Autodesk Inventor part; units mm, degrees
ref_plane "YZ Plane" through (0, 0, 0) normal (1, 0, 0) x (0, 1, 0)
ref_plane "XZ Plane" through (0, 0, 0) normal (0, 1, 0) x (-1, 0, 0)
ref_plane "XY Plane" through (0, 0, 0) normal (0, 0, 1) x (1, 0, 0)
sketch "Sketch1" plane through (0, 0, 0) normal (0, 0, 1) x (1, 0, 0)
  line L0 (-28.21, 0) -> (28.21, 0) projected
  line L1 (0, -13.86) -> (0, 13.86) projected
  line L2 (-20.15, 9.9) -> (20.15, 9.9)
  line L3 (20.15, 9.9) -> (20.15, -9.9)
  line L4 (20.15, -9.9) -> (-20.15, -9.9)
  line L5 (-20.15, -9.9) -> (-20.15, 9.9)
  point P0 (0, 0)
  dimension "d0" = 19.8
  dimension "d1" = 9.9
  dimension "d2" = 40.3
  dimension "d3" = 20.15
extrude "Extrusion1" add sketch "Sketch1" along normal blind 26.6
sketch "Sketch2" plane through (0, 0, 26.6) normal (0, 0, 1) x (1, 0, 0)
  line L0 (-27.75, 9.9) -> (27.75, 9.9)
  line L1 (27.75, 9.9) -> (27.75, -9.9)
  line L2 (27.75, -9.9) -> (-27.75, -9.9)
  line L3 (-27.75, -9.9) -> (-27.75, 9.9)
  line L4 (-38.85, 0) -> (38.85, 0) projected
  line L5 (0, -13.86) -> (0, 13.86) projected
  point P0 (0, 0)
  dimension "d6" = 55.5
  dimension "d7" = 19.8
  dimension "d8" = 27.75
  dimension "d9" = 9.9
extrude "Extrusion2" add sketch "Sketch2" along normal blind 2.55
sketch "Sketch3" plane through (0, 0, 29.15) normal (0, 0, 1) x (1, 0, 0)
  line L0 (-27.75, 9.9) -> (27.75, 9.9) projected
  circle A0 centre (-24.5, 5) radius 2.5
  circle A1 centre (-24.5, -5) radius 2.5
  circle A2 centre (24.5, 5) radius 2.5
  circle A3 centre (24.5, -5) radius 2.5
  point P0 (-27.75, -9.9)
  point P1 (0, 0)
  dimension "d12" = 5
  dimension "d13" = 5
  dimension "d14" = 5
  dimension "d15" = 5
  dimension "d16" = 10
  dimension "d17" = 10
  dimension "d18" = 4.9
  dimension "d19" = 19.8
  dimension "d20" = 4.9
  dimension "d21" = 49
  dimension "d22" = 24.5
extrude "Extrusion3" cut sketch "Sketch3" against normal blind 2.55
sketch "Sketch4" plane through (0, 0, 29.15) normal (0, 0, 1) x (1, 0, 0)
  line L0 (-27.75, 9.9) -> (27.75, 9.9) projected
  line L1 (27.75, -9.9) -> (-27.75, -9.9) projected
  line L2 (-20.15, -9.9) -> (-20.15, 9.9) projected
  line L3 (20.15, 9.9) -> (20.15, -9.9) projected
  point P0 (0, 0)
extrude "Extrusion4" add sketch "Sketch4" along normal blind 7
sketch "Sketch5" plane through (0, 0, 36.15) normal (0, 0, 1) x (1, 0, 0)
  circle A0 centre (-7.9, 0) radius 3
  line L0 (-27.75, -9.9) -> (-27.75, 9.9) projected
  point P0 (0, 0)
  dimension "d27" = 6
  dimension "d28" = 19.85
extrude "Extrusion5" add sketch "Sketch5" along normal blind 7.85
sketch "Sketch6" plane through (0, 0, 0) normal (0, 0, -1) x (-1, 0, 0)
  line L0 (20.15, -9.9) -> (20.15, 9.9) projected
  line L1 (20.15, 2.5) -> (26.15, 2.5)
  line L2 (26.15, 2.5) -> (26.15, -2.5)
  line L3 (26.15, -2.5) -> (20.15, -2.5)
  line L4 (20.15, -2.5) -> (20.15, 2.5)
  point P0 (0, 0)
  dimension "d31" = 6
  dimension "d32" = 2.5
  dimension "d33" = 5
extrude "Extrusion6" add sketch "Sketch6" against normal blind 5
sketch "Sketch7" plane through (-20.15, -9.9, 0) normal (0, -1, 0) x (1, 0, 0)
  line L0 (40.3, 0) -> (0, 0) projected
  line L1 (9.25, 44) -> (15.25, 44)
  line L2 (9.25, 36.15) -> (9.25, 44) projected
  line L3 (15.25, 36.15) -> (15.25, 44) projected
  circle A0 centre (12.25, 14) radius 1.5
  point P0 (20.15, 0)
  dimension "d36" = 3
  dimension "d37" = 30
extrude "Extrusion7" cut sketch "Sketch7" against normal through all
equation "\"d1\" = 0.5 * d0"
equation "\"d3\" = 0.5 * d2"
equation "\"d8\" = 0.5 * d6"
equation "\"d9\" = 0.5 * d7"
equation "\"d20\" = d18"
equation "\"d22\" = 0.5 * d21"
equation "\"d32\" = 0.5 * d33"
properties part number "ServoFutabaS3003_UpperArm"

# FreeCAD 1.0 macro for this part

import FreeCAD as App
import Part
import Sketcher

V = App.Vector


def add_polygon(sketch, points):
    """Adds a closed chain of lines whose ends are joined by coincident constraints."""
    first, n = sketch.GeometryCount, len(points)
    for a, b in zip(points, points[1:] + points[:1]):
        sketch.addGeometry(Part.LineSegment(App.Vector(*a, 0), App.Vector(*b, 0)), False)
    for i in range(n):
        sketch.addConstraint(Sketcher.Constraint("Coincident", first + i, 2, first + (i + 1) % n, 1))

doc = App.newDocument("Part")
body = doc.addObject("PartDesign::Body", "Body")

sketch1 = body.newObject("Sketcher::SketchObject", "Sketch")
sketch1.AttachmentSupport = (doc.getObject("XY_Plane"), [""])
sketch1.MapMode = "FlatFace"
add_polygon(sketch1, [(-20, 10), (-20, -10), (20, -10), (20, 10)])
sketch1.addConstraint(Sketcher.Constraint("Vertical", 0))
sketch1.addConstraint(Sketcher.Constraint("Horizontal", 1))
sketch1.addConstraint(Sketcher.Constraint("Vertical", 2))
sketch1.addConstraint(Sketcher.Constraint("Horizontal", 3))
sketch1.addConstraint(Sketcher.Constraint("Symmetric", 0, 2, 2, 2, -1, 1))
sketch1.addConstraint(Sketcher.Constraint("DistanceX", 1, 1, 1, 2, 40.3))
sketch1.addConstraint(Sketcher.Constraint("DistanceY", 0, 2, 0, 1, 19.8))
pad1 = body.newObject("PartDesign::Pad", "Pad")
pad1.Profile = sketch1
pad1.Length = 26.6

sketch2 = body.newObject("Sketcher::SketchObject", "Sketch001")
sketch2.AttachmentSupport = (doc.getObject("XY_Plane"), [""])
sketch2.MapMode = "FlatFace"
sketch2.AttachmentOffset = App.Placement(V(0, 0, 26.6), App.Rotation())
add_polygon(sketch2, [(-28, 10), (-28, -10), (28, -10), (28, 10)])
sketch2.addConstraint(Sketcher.Constraint("Vertical", 0))
sketch2.addConstraint(Sketcher.Constraint("Horizontal", 1))
sketch2.addConstraint(Sketcher.Constraint("Vertical", 2))
sketch2.addConstraint(Sketcher.Constraint("Horizontal", 3))
sketch2.addConstraint(Sketcher.Constraint("Symmetric", 0, 2, 2, 2, -1, 1))
sketch2.addConstraint(Sketcher.Constraint("DistanceX", 1, 1, 1, 2, 55.5))
sketch2.addConstraint(Sketcher.Constraint("DistanceY", 0, 2, 0, 1, 19.8))
pad2 = body.newObject("PartDesign::Pad", "Pad001")
pad2.Profile = sketch2
pad2.Length = 2.55

sketch3 = body.newObject("Sketcher::SketchObject", "Sketch002")
sketch3.AttachmentSupport = (doc.getObject("XY_Plane"), [""])
sketch3.MapMode = "FlatFace"
sketch3.AttachmentOffset = App.Placement(V(0, 0, 29.15), App.Rotation())
sketch3.addGeometry(Part.Circle(V(-24.5, 5, 0), V(0, 0, 1), 2.5), False)
sketch3.addGeometry(Part.Circle(V(-24.5, -5, 0), V(0, 0, 1), 2.5), False)
sketch3.addGeometry(Part.Circle(V(24.5, 5, 0), V(0, 0, 1), 2.5), False)
sketch3.addGeometry(Part.Circle(V(24.5, -5, 0), V(0, 0, 1), 2.5), False)
sketch3.addConstraint(Sketcher.Constraint("Equal", 0, 1))
sketch3.addConstraint(Sketcher.Constraint("Equal", 1, 2))
sketch3.addConstraint(Sketcher.Constraint("Equal", 2, 3))
sketch3.addConstraint(Sketcher.Constraint("Symmetric", 1, 3, 2, 3, -1, 1))
sketch3.addConstraint(Sketcher.Constraint("Symmetric", 0, 3, 3, 3, -1, 1))
sketch3.addConstraint(Sketcher.Constraint("Symmetric", 0, 3, 2, 3, -2))
sketch3.addConstraint(Sketcher.Constraint("Diameter", 0, 5.0))
sketch3.addConstraint(Sketcher.Constraint("DistanceY", -1, 1, 0, 3, 5.0))
sketch3.addConstraint(Sketcher.Constraint("DistanceX", 0, 3, 2, 3, 49.0))
pocket1 = body.newObject("PartDesign::Pocket", "Pocket")
pocket1.Profile = sketch3
pocket1.Length = 2.55

sketch4 = body.newObject("Sketcher::SketchObject", "Sketch003")
sketch4.AttachmentSupport = (doc.getObject("XY_Plane"), [""])
sketch4.MapMode = "FlatFace"
sketch4.AttachmentOffset = App.Placement(V(0, 0, 29.15), App.Rotation())
add_polygon(sketch4, [(20, 10), (-20, 10), (-20, -10), (20, -10)])
sketch4.addConstraint(Sketcher.Constraint("Horizontal", 0))
sketch4.addConstraint(Sketcher.Constraint("Vertical", 1))
sketch4.addConstraint(Sketcher.Constraint("Horizontal", 2))
sketch4.addConstraint(Sketcher.Constraint("Vertical", 3))
sketch4.addConstraint(Sketcher.Constraint("Symmetric", 0, 2, 2, 2, -1, 1))
sketch4.addConstraint(Sketcher.Constraint("DistanceX", 0, 2, 0, 1, 40.3))
sketch4.addConstraint(Sketcher.Constraint("DistanceY", 1, 2, 1, 1, 19.8))
pad3 = body.newObject("PartDesign::Pad", "Pad002")
pad3.Profile = sketch4
pad3.Length = 7

sketch5 = body.newObject("Sketcher::SketchObject", "Sketch004")
sketch5.AttachmentSupport = (doc.getObject("XY_Plane"), [""])
sketch5.MapMode = "FlatFace"
sketch5.AttachmentOffset = App.Placement(V(0, 0, 36.15), App.Rotation())
sketch5.addGeometry(Part.Circle(V(-7.9, 0, 0), V(0, 0, 1), 3), False)
sketch5.addConstraint(Sketcher.Constraint("PointOnObject", 0, 3, -1))
sketch5.addConstraint(Sketcher.Constraint("Diameter", 0, 6.0))
sketch5.addConstraint(Sketcher.Constraint("DistanceX", 0, 3, -1, 1, 7.9))
pad4 = body.newObject("PartDesign::Pad", "Pad003")
pad4.Profile = sketch5
pad4.Length = 7.85

sketch6 = body.newObject("Sketcher::SketchObject", "Sketch005")
sketch6.AttachmentSupport = (doc.getObject("XY_Plane"), [""])
sketch6.MapMode = "FlatFace"
add_polygon(sketch6, [(-20, 2), (-20, -2), (-26, -2), (-26, 2)])
sketch6.addConstraint(Sketcher.Constraint("Vertical", 0))
sketch6.addConstraint(Sketcher.Constraint("Horizontal", 1))
sketch6.addConstraint(Sketcher.Constraint("Vertical", 2))
sketch6.addConstraint(Sketcher.Constraint("Horizontal", 3))
sketch6.addConstraint(Sketcher.Constraint("DistanceX", 1, 2, 1, 1, 6.0))
sketch6.addConstraint(Sketcher.Constraint("DistanceY", 0, 2, 0, 1, 5.0))
sketch6.addConstraint(Sketcher.Constraint("DistanceY", 0, 2, -1, 1, 2.5))
sketch6.addConstraint(Sketcher.Constraint("DistanceX", 0, 2, -1, 1, 20.15))
pad5 = body.newObject("PartDesign::Pad", "Pad004")
pad5.Profile = sketch6
pad5.Length = 5

sketch7 = body.newObject("Sketcher::SketchObject", "Sketch006")
sketch7.AttachmentSupport = (doc.getObject("XZ_Plane"), [""])
sketch7.MapMode = "FlatFace"
sketch7.AttachmentOffset = App.Placement(V(0, 0, 9.9), App.Rotation())
sketch7.addGeometry(Part.Circle(V(-7.9, 14, 0), V(0, 0, 1), 1.5), False)
sketch7.addConstraint(Sketcher.Constraint("Diameter", 0, 3.0))
sketch7.addConstraint(Sketcher.Constraint("DistanceY", -1, 1, 0, 3, 14.0))
sketch7.addConstraint(Sketcher.Constraint("DistanceX", 0, 3, -1, 1, 7.9))
pocket2 = body.newObject("PartDesign::Pocket", "Pocket001")
pocket2.Profile = sketch7
pocket2.Type = "ThroughAll"

doc.recompute()
